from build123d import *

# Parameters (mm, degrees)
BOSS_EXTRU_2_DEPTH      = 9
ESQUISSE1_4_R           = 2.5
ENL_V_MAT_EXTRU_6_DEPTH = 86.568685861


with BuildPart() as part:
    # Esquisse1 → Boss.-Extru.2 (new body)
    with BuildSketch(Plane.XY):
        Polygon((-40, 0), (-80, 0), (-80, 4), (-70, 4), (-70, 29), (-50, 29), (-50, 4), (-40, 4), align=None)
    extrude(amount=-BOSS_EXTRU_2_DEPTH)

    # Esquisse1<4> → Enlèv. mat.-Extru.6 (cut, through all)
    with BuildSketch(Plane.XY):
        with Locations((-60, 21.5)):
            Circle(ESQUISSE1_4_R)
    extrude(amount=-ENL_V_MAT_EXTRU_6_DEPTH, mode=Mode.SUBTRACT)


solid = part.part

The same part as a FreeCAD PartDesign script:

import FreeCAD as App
import Part
import Sketcher
Q = App.Units.Quantity

doc = App.newDocument("Part")
body = doc.addObject("PartDesign::Body", "Body")

# Sketch on XY plane
sketch1 = body.newObject("Sketcher::SketchObject", "Sketch")
sketch1.AttachmentSupport = (doc.getObject("XY_Plane"), [""])
sketch1.MapMode = "FlatFace"
sketch1.addGeometry([
    Part.LineSegment(App.Vector(-80, 0, 0), App.Vector(-40, 0, 0)),  # 0
    Part.LineSegment(App.Vector(-40, 0, 0), App.Vector(-40, 4, 0)),  # 1
    Part.LineSegment(App.Vector(-40, 4, 0), App.Vector(-50, 4, 0)),  # 2
    Part.LineSegment(App.Vector(-50, 4, 0), App.Vector(-50, 29, 0)),  # 3
    Part.LineSegment(App.Vector(-50, 29, 0), App.Vector(-70, 29, 0)),  # 4
    Part.LineSegment(App.Vector(-70, 29, 0), App.Vector(-70, 4, 0)),  # 5
    Part.LineSegment(App.Vector(-70, 4, 0), App.Vector(-80, 4, 0)),  # 6
    Part.LineSegment(App.Vector(-80, 4, 0), App.Vector(-80, 0, 0)),  # 7
], False)
sketch1.addConstraint([
    Sketcher.Constraint("Coincident", 0, 2, 1, 1),
    Sketcher.Constraint("Coincident", 1, 2, 2, 1),
    Sketcher.Constraint("Coincident", 2, 2, 3, 1),
    Sketcher.Constraint("Coincident", 3, 2, 4, 1),
    Sketcher.Constraint("Coincident", 4, 2, 5, 1),
    Sketcher.Constraint("Coincident", 5, 2, 6, 1),
    Sketcher.Constraint("Coincident", 6, 2, 7, 1),
    Sketcher.Constraint("Coincident", 7, 2, 0, 1),
    Sketcher.Constraint("Horizontal", 0),
    Sketcher.Constraint("Vertical", 1),
    Sketcher.Constraint("Horizontal", 2),
    Sketcher.Constraint("Vertical", 3),
    Sketcher.Constraint("Horizontal", 4),
    Sketcher.Constraint("Vertical", 5),
    Sketcher.Constraint("Horizontal", 6),
    Sketcher.Constraint("Vertical", 7),
    Sketcher.Constraint("PointOnObject", 0, 2, -1),
    Sketcher.Constraint("Horizontal", 2, 2, 5, 2),
    Sketcher.Constraint("Equal", 2, 6),
    Sketcher.Constraint("DistanceX", 0, 1, 0, 2, Q("40 mm")),
    Sketcher.Constraint("DistanceX", 2, 2, 2, 1, Q("10 mm")),
    Sketcher.Constraint("DistanceY", 1, 1, 1, 2, Q("4 mm")),
    Sketcher.Constraint("DistanceY", 3, 1, 3, 2, Q("25 mm")),
    Sketcher.Constraint("DistanceX", 0, 2, -1, 1, Q("40 mm")),
])
pad1 = body.newObject("PartDesign::Pad", "Pad")
pad1.Profile = sketch1
pad1.Length = 9
pad1.Reversed = True

# Sketch on XY plane
sketch2 = body.newObject("Sketcher::SketchObject", "Sketch001")
sketch2.AttachmentSupport = (doc.getObject("XY_Plane"), [""])
sketch2.MapMode = "FlatFace"
sketch2.addGeometry(Part.Circle(App.Vector(-60, 21.5, 0), App.Vector(0, 0, 1), 2.5), False)
sketch2.addConstraint([
    Sketcher.Constraint("Diameter", 0, Q("5 mm")),
    Sketcher.Constraint("DistanceX", 0, 3, -1, 1, Q("60 mm")),
    Sketcher.Constraint("DistanceY", -1, 1, 0, 3, Q("21.5 mm")),
])
pocket1 = body.newObject("PartDesign::Pocket", "Pocket")
pocket1.Profile = sketch2
pocket1.Type = "ThroughAll"

doc.recompute()
